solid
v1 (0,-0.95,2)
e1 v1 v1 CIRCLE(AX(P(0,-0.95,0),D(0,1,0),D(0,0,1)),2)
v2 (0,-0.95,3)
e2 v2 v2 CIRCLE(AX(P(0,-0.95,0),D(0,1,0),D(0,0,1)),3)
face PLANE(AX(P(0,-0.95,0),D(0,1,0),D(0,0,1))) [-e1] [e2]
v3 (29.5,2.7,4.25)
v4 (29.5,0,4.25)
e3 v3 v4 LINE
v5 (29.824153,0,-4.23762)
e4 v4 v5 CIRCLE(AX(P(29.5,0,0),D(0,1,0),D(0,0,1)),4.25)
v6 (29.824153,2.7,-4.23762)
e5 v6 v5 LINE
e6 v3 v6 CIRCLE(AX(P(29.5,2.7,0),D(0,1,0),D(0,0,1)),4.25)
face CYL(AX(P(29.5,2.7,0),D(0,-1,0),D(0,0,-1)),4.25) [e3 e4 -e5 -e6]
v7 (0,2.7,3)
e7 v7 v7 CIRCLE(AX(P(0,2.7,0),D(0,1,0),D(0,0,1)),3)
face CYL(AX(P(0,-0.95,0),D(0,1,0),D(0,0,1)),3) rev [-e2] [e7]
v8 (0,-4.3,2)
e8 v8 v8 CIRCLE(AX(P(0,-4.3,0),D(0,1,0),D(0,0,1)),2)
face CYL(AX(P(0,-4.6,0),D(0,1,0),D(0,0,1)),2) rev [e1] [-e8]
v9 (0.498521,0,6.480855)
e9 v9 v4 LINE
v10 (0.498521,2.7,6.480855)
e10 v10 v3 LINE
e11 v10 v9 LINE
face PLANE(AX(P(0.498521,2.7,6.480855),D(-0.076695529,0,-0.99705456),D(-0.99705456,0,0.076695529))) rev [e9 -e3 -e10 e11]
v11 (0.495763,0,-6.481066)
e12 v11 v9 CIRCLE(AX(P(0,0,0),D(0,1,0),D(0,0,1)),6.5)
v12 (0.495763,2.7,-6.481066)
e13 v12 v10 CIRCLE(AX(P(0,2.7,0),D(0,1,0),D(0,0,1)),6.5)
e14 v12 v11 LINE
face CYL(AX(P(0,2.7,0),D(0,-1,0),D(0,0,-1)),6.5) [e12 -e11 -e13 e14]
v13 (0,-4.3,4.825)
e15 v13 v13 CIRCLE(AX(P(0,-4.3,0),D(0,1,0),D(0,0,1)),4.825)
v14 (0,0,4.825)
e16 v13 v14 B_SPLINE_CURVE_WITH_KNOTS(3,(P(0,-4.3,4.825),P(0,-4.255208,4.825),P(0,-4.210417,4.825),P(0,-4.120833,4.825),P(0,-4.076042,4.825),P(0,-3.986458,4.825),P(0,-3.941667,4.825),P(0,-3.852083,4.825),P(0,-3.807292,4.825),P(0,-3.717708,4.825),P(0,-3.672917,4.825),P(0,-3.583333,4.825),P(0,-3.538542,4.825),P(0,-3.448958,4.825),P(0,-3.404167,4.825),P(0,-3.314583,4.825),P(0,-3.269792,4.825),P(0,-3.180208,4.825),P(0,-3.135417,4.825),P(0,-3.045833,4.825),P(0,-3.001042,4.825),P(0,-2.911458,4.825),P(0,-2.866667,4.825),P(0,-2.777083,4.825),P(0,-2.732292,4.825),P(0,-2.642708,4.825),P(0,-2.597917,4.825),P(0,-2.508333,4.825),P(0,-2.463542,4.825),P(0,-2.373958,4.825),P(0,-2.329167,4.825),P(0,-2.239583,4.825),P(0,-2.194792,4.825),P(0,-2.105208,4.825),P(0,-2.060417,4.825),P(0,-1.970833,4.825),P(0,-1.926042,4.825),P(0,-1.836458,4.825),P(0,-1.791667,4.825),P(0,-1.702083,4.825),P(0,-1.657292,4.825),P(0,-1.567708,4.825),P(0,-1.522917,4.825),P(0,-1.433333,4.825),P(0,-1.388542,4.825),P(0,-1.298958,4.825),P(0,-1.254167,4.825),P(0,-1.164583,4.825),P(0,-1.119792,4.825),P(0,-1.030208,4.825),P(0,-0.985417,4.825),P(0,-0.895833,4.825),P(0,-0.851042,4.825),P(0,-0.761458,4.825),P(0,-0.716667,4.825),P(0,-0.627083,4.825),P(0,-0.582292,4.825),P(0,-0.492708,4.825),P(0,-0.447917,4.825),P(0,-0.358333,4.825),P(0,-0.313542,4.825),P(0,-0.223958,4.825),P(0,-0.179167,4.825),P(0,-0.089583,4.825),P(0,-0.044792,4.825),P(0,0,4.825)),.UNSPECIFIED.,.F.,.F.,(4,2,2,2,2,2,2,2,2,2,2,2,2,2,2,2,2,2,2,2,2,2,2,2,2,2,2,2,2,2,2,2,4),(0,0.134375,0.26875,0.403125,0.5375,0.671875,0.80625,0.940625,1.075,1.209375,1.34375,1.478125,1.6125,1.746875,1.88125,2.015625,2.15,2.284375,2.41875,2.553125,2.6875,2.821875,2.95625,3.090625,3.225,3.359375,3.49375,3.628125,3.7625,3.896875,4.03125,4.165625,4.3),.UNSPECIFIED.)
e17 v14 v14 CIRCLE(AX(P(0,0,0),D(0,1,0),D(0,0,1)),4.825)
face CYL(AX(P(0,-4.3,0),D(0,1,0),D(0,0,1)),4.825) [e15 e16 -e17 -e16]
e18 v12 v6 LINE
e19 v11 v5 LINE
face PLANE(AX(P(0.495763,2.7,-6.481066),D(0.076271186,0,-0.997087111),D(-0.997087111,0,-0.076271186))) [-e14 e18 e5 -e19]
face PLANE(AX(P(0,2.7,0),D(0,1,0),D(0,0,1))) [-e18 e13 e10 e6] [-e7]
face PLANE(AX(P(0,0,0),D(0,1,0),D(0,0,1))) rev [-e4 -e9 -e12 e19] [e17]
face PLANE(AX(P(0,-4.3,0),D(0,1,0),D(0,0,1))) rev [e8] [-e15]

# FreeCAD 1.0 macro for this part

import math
import FreeCAD as App
import Part
import Sketcher

doc = App.newDocument("Part")
params = doc.addObject("Spreadsheet::Sheet", "Params")
for row, (alias, value) in enumerate([
    ("sketch1_radius", "6.5 mm"),
    ("sketch1_radius2", "4.25 mm"),
    ("pad1_length", "2.7 mm"),
    ("sketch2_diameter", "9.65 mm"),
    ("pad2_length", "4.3 mm"),
    ("sketch3_diameter", "6 mm"),
    ("pocket1_length", "3.65 mm"),
    ("sketch4_diameter", "4 mm"),
    ("pocket2_length", "3.65 mm"),
], start=1):
    params.set(f"A{row}", alias)
    params.set(f"B{row}", "=" + value)
    params.setAlias(f"B{row}", alias)

body = doc.addObject("PartDesign::Body", "Body")

# Sketch on XZ plane
sketch1 = body.newObject("Sketcher::SketchObject", "Sketch")
sketch1.AttachmentSupport = (doc.getObject("XZ_Plane"), [""])
sketch1.MapMode = "FlatFace"
sketch1.addGeometry(Part.LineSegment(App.Vector(29.8, -4.2, 0), App.Vector(0.5, -6.5, 0)), False)
sketch1.addGeometry(Part.ArcOfCircle(Part.Circle(App.Vector(0, 0, 0), App.Vector(0, 0, 1), 6.5), math.radians(86), math.radians(274)), False)
sketch1.addGeometry(Part.LineSegment(App.Vector(0.5, 6.5, 0), App.Vector(29.5, 4.2, 0)), False)
sketch1.addGeometry(Part.ArcOfCircle(Part.Circle(App.Vector(29.5, 0, 0), App.Vector(0, 0, 1), 4.2), math.radians(-86), math.radians(90)), False)
sketch1.addConstraint(Sketcher.Constraint("Tangent", 0, 2, 1, 2))
sketch1.addConstraint(Sketcher.Constraint("Tangent", 1, 1, 2, 1))
sketch1.addConstraint(Sketcher.Constraint("Coincident", 2, 2, 3, 2))
sketch1.addConstraint(Sketcher.Constraint("Tangent", 3, 1, 0, 1))
sketch1.addConstraint(Sketcher.Constraint("Coincident", 1, 3, -1, 1))
sketch1.addConstraint(Sketcher.Constraint("PointOnObject", 3, 3, -1))
sketch1.addConstraint(Sketcher.Constraint("Vertical", 3, 3, 2, 2))
sketch1.addConstraint(Sketcher.Constraint("Radius", 1, 6.5))
sketch1.addConstraint(Sketcher.Constraint("Radius", 3, 4.25))
sketch1.addConstraint(Sketcher.Constraint("DistanceX", -1, 1, 3, 3, 29.5))
sketch1.setExpression("Constraints[7]", "Params.sketch1_radius")
sketch1.setExpression("Constraints[8]", "Params.sketch1_radius2")
pad1 = body.newObject("PartDesign::Pad", "Pad")
pad1.Profile = sketch1
pad1.setExpression("Length", "Params.pad1_length")
pad1.Reversed = True

# Sketch on XZ plane
sketch2 = body.newObject("Sketcher::SketchObject", "Sketch001")
sketch2.AttachmentSupport = (doc.getObject("XZ_Plane"), [""])
sketch2.MapMode = "FlatFace"
sketch2.addGeometry(Part.Circle(App.Vector(0, 0, 0), App.Vector(0, 0, 1), 4.8), False)
sketch2.addConstraint(Sketcher.Constraint("Coincident", 0, 3, -1, 1))
sketch2.addConstraint(Sketcher.Constraint("Diameter", 0, 9.65))
sketch2.setExpression("Constraints[1]", "Params.sketch2_diameter")
pad2 = body.newObject("PartDesign::Pad", "Pad001")
pad2.Profile = sketch2
pad2.setExpression("Length", "Params.pad2_length")

# Sketch on XZ plane
sketch3 = body.newObject("Sketcher::SketchObject", "Sketch002")
sketch3.AttachmentSupport = (doc.getObject("XZ_Plane"), [""])
sketch3.MapMode = "FlatFace"
sketch3.AttachmentOffset = App.Placement(App.Vector(0, 0, -2.7), App.Rotation())
sketch3.addGeometry(Part.Circle(App.Vector(0, 0, 0), App.Vector(0, 0, 1), 3), False)
sketch3.addConstraint(Sketcher.Constraint("Coincident", 0, 3, -1, 1))
sketch3.addConstraint(Sketcher.Constraint("Diameter", 0, 6.0))
sketch3.setExpression("Constraints[1]", "Params.sketch3_diameter")
pocket1 = body.newObject("PartDesign::Pocket", "Pocket")
pocket1.Profile = sketch3
pocket1.setExpression("Length", "Params.pocket1_length")
pocket1.Reversed = True

# Sketch on XZ plane
sketch4 = body.newObject("Sketcher::SketchObject", "Sketch003")
sketch4.AttachmentSupport = (doc.getObject("XZ_Plane"), [""])
sketch4.MapMode = "FlatFace"
sketch4.AttachmentOffset = App.Placement(App.Vector(0, 0, 0.95), App.Rotation())
sketch4.addGeometry(Part.Circle(App.Vector(0, 0, 0), App.Vector(0, 0, 1), 2), False)
sketch4.addConstraint(Sketcher.Constraint("Coincident", 0, 3, -1, 1))
sketch4.addConstraint(Sketcher.Constraint("Diameter", 0, 4.0))
sketch4.setExpression("Constraints[1]", "Params.sketch4_diameter")
pocket2 = body.newObject("PartDesign::Pocket", "Pocket001")
pocket2.Profile = sketch4
pocket2.setExpression("Length", "Params.pocket2_length")
pocket2.Reversed = True

doc.recompute()
